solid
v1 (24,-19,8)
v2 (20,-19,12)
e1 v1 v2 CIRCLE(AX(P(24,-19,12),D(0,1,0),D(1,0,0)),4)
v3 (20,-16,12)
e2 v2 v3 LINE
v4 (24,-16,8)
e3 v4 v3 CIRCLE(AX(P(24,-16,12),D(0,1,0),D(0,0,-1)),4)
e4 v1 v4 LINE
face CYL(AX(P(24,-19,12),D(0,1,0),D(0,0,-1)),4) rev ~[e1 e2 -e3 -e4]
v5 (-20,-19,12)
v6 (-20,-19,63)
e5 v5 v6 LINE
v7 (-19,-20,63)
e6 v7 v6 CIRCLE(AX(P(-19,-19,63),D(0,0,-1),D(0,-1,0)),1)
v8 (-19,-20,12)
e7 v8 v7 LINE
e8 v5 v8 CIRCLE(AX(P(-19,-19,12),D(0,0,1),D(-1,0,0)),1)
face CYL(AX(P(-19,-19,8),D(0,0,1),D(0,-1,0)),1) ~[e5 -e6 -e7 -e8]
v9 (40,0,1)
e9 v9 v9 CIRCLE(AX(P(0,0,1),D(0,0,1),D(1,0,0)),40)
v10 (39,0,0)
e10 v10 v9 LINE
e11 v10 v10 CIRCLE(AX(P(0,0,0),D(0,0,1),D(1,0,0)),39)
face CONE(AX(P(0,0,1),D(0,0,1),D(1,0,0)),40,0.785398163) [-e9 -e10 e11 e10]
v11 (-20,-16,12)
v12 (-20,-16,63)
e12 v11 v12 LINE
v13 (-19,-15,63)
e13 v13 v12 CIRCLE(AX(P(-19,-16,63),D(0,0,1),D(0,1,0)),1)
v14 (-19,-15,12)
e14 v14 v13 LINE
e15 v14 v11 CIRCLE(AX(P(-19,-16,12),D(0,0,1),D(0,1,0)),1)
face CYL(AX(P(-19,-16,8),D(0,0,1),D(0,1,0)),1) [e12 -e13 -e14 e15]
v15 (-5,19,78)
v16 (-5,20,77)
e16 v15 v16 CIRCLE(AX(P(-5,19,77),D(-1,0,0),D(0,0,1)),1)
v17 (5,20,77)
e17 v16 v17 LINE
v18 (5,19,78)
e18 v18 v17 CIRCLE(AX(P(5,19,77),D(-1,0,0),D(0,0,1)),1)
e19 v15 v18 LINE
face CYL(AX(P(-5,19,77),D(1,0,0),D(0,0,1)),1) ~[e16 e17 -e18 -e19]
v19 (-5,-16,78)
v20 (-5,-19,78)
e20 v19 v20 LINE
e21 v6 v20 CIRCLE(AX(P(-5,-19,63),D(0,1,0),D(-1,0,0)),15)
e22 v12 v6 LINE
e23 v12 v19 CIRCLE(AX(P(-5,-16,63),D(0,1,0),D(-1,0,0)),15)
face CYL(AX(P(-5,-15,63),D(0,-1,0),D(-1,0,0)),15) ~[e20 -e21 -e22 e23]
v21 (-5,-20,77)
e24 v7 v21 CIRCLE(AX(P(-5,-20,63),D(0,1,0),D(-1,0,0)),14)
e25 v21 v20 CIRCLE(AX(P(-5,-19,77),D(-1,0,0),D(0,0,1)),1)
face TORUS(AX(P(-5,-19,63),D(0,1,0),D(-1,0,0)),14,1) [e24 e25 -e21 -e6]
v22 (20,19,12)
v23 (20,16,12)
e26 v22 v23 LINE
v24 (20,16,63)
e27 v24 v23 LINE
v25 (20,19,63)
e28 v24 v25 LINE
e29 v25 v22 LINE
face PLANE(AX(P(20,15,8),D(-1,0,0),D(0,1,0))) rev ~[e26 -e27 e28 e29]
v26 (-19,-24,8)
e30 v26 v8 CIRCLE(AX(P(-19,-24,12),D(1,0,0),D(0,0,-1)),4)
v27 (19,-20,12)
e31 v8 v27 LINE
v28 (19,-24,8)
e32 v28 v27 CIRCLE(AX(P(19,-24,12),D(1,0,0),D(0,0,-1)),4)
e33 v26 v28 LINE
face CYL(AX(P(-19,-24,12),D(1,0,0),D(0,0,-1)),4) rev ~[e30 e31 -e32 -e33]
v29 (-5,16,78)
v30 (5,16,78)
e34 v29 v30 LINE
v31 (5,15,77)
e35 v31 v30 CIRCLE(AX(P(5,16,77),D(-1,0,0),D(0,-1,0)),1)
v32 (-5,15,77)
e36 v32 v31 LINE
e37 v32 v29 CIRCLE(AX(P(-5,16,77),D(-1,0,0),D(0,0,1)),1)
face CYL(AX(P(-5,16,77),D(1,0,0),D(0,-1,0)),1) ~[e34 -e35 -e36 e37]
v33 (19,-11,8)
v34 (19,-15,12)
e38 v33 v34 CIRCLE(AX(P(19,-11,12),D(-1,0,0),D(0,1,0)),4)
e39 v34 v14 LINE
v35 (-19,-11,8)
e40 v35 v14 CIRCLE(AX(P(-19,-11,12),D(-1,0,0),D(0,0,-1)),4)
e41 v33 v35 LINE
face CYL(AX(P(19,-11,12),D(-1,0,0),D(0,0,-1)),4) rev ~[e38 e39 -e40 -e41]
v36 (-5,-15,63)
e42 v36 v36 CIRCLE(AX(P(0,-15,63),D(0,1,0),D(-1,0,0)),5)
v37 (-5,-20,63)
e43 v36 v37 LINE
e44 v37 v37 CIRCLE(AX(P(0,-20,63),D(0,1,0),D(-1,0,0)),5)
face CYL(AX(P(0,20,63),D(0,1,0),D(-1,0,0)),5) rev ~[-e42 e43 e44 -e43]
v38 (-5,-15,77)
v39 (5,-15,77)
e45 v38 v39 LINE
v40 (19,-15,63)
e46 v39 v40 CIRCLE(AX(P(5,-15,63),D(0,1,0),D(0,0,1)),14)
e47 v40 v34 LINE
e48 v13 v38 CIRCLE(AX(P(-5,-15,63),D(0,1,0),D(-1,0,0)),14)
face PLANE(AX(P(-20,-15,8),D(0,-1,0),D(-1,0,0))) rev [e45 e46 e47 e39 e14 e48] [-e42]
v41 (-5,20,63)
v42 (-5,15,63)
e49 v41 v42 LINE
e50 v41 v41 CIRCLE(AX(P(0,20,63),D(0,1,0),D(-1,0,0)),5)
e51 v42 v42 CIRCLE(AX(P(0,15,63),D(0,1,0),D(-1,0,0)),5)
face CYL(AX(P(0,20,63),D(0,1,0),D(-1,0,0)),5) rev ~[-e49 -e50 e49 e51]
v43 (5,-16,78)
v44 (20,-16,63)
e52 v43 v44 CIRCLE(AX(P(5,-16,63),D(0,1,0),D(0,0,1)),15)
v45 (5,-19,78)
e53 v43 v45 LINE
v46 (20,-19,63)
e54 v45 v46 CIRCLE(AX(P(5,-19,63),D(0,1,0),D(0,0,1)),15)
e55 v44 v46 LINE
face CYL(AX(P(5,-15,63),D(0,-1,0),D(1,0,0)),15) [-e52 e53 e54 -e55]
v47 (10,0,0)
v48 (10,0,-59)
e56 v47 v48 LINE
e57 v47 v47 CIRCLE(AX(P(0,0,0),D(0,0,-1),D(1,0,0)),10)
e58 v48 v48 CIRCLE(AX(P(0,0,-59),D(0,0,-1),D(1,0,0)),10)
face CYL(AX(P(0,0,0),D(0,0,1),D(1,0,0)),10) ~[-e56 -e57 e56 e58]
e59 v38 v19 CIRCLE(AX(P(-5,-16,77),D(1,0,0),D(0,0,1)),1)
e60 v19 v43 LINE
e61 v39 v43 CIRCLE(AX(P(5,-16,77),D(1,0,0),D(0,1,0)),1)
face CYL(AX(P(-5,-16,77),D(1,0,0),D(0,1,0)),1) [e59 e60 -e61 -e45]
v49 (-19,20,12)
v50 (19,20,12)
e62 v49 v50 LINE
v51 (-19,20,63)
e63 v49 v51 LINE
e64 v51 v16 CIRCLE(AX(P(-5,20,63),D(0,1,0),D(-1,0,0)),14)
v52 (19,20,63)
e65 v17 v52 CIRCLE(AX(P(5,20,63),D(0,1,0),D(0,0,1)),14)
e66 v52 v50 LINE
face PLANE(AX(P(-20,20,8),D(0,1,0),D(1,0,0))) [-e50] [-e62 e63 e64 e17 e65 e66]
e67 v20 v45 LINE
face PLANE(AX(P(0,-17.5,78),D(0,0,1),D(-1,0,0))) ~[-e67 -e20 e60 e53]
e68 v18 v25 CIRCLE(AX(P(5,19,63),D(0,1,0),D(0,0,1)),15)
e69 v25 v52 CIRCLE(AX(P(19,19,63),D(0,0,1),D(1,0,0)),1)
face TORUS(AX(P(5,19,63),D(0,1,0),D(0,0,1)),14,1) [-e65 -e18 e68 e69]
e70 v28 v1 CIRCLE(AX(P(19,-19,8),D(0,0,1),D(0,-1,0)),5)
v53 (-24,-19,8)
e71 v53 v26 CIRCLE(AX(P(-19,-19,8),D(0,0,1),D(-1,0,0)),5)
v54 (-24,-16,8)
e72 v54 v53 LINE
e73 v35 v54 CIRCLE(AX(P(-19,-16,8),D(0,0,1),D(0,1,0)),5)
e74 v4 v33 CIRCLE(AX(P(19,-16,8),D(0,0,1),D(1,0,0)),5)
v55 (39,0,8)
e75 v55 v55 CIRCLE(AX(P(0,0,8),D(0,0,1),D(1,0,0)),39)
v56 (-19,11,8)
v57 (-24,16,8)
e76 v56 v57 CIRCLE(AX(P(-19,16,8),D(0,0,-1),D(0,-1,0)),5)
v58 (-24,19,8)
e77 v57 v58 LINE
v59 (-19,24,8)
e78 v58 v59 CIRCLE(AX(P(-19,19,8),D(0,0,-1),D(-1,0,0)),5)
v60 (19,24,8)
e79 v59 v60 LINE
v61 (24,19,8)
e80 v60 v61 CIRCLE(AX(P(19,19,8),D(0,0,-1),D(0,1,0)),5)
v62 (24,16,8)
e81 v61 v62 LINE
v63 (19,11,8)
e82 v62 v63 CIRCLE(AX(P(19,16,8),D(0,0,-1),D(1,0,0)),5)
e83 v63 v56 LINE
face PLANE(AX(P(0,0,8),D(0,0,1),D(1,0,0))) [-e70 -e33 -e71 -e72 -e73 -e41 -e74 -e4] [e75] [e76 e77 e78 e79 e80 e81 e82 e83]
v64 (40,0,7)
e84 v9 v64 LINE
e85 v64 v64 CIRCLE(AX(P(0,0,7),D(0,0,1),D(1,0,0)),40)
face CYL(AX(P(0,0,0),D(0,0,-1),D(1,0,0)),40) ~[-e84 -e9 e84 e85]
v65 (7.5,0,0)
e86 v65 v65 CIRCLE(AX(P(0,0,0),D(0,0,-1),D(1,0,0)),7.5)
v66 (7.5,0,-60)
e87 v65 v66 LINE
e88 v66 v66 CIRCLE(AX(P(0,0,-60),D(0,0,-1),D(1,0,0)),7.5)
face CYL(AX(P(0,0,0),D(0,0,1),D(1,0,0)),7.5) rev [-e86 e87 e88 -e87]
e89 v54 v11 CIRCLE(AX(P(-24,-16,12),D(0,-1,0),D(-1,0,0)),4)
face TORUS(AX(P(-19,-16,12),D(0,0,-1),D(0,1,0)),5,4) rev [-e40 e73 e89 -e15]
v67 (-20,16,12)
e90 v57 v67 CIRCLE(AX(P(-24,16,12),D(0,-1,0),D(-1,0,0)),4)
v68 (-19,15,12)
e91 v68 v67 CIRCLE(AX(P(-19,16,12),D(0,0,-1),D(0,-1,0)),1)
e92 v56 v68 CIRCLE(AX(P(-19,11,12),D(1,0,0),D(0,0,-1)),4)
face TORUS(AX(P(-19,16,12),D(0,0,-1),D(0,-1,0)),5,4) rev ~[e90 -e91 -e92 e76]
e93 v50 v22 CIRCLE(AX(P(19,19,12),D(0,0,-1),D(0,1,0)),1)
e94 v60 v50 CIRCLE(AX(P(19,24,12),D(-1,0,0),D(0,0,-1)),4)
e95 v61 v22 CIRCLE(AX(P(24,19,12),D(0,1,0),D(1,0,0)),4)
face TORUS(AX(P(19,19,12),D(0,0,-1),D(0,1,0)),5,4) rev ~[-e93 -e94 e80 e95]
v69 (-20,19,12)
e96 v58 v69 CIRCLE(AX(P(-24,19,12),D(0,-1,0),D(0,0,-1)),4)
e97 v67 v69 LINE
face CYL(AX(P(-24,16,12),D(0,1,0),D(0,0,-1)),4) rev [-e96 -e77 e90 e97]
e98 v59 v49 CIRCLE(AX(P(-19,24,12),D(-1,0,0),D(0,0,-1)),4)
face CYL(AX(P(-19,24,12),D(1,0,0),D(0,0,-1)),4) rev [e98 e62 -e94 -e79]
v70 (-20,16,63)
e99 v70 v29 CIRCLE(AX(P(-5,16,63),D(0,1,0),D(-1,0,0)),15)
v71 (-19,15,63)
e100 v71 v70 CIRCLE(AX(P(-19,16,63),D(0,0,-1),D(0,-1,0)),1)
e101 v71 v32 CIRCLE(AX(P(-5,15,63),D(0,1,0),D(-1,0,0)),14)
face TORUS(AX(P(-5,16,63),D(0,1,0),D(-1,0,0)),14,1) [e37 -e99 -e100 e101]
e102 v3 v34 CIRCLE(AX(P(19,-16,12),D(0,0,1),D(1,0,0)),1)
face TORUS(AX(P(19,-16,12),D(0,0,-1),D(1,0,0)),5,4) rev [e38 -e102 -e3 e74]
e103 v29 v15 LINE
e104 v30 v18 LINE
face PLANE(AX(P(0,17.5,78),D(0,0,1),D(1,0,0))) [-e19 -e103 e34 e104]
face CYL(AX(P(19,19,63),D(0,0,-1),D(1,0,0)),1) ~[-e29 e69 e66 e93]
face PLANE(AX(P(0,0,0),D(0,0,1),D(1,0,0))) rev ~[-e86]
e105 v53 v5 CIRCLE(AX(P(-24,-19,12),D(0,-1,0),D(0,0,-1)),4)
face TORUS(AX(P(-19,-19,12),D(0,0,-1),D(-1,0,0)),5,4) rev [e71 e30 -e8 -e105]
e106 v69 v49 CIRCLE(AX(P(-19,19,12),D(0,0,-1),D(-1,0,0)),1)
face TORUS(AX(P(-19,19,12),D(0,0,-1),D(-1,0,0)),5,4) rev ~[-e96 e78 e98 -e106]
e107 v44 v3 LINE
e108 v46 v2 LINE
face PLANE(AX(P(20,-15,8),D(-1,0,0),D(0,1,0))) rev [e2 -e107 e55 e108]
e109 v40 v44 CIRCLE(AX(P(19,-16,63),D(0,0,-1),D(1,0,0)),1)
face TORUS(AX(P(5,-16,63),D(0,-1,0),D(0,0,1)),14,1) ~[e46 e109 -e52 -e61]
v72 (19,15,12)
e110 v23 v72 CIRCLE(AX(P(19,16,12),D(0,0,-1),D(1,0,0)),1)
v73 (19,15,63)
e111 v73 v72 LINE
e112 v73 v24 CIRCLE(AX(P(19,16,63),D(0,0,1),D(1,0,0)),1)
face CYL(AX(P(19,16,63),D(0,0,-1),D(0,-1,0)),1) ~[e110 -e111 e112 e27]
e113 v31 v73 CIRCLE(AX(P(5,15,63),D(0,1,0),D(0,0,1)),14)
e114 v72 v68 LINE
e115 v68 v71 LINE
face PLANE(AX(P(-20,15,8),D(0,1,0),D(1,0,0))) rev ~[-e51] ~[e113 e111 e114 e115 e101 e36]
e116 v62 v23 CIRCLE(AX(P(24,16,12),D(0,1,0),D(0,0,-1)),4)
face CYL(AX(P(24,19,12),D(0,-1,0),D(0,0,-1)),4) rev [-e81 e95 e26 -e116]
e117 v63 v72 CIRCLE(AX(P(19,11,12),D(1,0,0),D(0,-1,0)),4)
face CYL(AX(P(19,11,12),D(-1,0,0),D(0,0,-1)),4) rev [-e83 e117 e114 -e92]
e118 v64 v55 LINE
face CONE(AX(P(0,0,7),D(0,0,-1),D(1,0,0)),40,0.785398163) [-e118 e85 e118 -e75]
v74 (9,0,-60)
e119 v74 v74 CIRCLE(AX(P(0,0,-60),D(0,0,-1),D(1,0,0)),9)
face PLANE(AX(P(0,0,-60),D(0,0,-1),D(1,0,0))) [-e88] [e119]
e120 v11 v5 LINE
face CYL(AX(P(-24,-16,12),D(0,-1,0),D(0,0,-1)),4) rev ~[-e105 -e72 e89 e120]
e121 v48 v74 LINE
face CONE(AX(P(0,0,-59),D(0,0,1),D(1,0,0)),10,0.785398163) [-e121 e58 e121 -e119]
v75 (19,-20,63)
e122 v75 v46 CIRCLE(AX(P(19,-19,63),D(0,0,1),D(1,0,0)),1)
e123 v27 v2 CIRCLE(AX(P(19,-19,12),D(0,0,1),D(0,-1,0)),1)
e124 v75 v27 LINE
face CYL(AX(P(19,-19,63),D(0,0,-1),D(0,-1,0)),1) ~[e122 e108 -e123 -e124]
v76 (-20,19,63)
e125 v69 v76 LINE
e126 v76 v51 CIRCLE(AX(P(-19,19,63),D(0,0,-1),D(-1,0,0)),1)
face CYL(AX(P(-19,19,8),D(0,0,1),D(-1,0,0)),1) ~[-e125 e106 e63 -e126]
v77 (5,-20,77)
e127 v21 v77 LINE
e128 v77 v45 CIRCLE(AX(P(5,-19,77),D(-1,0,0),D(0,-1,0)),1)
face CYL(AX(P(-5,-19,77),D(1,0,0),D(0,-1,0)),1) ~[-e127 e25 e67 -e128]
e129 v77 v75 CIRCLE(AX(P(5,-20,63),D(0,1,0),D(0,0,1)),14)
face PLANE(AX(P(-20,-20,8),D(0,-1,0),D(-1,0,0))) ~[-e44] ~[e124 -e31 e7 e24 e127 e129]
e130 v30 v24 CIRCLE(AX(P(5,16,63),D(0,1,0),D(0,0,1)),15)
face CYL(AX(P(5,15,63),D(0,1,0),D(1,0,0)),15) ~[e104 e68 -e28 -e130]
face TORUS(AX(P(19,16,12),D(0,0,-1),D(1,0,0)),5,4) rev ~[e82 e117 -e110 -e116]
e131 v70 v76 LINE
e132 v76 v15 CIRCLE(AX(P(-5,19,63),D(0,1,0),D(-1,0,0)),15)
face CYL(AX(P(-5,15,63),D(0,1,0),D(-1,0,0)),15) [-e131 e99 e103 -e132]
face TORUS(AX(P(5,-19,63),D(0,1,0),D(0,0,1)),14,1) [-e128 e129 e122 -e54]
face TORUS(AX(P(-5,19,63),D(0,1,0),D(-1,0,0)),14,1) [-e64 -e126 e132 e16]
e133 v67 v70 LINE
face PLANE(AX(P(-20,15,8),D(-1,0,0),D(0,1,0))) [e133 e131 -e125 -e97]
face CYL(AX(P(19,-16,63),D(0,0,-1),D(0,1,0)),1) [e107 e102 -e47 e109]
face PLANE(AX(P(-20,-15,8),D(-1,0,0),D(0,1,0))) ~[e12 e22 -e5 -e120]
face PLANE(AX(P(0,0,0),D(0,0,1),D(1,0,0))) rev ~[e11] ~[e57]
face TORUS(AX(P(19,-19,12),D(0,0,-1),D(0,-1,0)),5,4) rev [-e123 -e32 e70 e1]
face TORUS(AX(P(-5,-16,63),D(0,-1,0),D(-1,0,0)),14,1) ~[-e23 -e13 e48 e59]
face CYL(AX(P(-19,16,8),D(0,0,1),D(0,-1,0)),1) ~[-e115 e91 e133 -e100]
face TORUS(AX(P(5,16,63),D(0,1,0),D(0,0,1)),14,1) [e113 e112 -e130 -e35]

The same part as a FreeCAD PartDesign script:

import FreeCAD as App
import Part
import Sketcher
Q = App.Units.Quantity


def edges_at(feature, points):
    """Names of the edges that pass closest to the given points."""
    edges = feature.Shape.Edges
    near = lambda p: min(range(len(edges)), key=lambda i: edges[i].distToShape(Part.Vertex(*p))[0])
    return sorted({f"Edge{near(p) + 1}" for p in points})


def add_polygon(sketch, points):
    """Adds a closed chain of lines whose ends are joined by coincident constraints."""
    first, n = sketch.GeometryCount, len(points)
    for a, b in zip(points, points[1:] + points[:1]):
        sketch.addGeometry(Part.LineSegment(App.Vector(*a, 0), App.Vector(*b, 0)), False)
    for i in range(n):
        sketch.addConstraint(Sketcher.Constraint("Coincident", first + i, 2, first + (i + 1) % n, 1))

doc = App.newDocument("Part")
body = doc.addObject("PartDesign::Body", "Body")

# Sketch on XY plane
sketch1 = body.newObject("Sketcher::SketchObject", "Sketch")
sketch1.AttachmentSupport = (doc.getObject("XY_Plane"), [""])
sketch1.MapMode = "FlatFace"
sketch1.addGeometry(Part.Circle(App.Vector(0, 0, 0), App.Vector(0, 0, 1), 40), False)
sketch1.addConstraint(Sketcher.Constraint("Coincident", 0, 3, -1, 1))
sketch1.addConstraint(Sketcher.Constraint("Diameter", 0, Q("80 mm")))
pad1 = body.newObject("PartDesign::Pad", "Pad")
pad1.Profile = sketch1
pad1.Length = 8

# Sketch on XY plane
sketch2 = body.newObject("Sketcher::SketchObject", "Sketch001")
sketch2.AttachmentSupport = (doc.getObject("XY_Plane"), [""])
sketch2.MapMode = "FlatFace"
sketch2.AttachmentOffset = App.Placement(App.Vector(0, 0, 8), App.Rotation())
add_polygon(sketch2, [(-20, 20), (-20, 15), (20, 15), (20, 20)])  # lines 0-3
sketch2.addConstraint(Sketcher.Constraint("Vertical", 0))
sketch2.addConstraint(Sketcher.Constraint("Horizontal", 1))
sketch2.addConstraint(Sketcher.Constraint("Vertical", 2))
sketch2.addConstraint(Sketcher.Constraint("Horizontal", 3))
sketch2.addConstraint(Sketcher.Constraint("DistanceX", 1, 1, 1, 2, Q("40 mm")))
sketch2.addConstraint(Sketcher.Constraint("DistanceY", 0, 2, 0, 1, Q("5 mm")))
sketch2.addConstraint(Sketcher.Constraint("DistanceX", 0, 2, -1, 1, Q("20 mm")))
sketch2.addConstraint(Sketcher.Constraint("DistanceY", -1, 1, 0, 2, Q("15 mm")))
pad2 = body.newObject("PartDesign::Pad", "Pad001")
pad2.Profile = sketch2
pad2.Length = 70
doc.recompute()

fillet = body.newObject("PartDesign::Fillet", "Fillet")
fillet.Base = (pad2, edges_at(pad2, [(-20, 17.5, 78), (20, 17.5, 78)]))
fillet.Radius = 15
doc.recompute()

fillet2 = body.newObject("PartDesign::Fillet", "Fillet001")
fillet2.Base = (fillet, edges_at(fillet, [
    (0, 15, 78),
    (0, 20, 78),
    (-20, 20, 35.5),
    (20, 20, 35.5),
    (-15.607, 20, 73.607),
    (15.607, 20, 73.607),
    (20, 15, 35.5),
    (-20, 15, 35.5),
    (-15.607, 15, 73.607),
    (15.607, 15, 73.607),
]))
fillet2.Radius = 1
doc.recompute()

fillet3 = body.newObject("PartDesign::Fillet", "Fillet002")
fillet3.Base = (fillet2, edges_at(fillet2, [
    (0, 20, 8),
    (20, 17.5, 8),
    (0, 15, 8),
    (-20, 17.5, 8),
    (19.707, 19.707, 8),
    (19.707, 15.293, 8),
    (-19.707, 19.707, 8),
    (-19.707, 15.293, 8),
]))
fillet3.Radius = 4
doc.recompute()

mirrored = body.newObject("PartDesign::Mirrored", "Mirrored")
mirrored.Originals = [pad2]
mirrored.MirrorPlane = (doc.getObject("XZ_Plane"), [""])
body.Tip = mirrored
doc.recompute()

fillet4 = body.newObject("PartDesign::Fillet", "Fillet003")
fillet4.Base = (mirrored, edges_at(mirrored, [(-20, -17.5, 78), (20, -17.5, 78)]))
fillet4.Radius = 15
doc.recompute()

fillet5 = body.newObject("PartDesign::Fillet", "Fillet004")
fillet5.Base = (fillet4, edges_at(fillet4, [
    (0, -15, 78),
    (0, -20, 78),
    (-20, -20, 35.5),
    (20, -20, 35.5),
    (-15.607, -20, 73.607),
    (15.607, -20, 73.607),
    (20, -15, 35.5),
    (-20, -15, 35.5),
    (-15.607, -15, 73.607),
    (15.607, -15, 73.607),
]))
fillet5.Radius = 1
doc.recompute()

fillet6 = body.newObject("PartDesign::Fillet", "Fillet005")
fillet6.Base = (fillet5, edges_at(fillet5, [
    (0, -20, 8),
    (20, -17.5, 8),
    (0, -15, 8),
    (-20, -17.5, 8),
    (19.707, -19.707, 8),
    (19.707, -15.293, 8),
    (-19.707, -19.707, 8),
    (-19.707, -15.293, 8),
]))
fillet6.Radius = 4

# Sketch on XZ plane
sketch3 = body.newObject("Sketcher::SketchObject", "Sketch002")
sketch3.AttachmentSupport = (doc.getObject("XZ_Plane"), [""])
sketch3.MapMode = "FlatFace"
sketch3.AttachmentOffset = App.Placement(App.Vector(0, 0, -20), App.Rotation())
sketch3.addGeometry(Part.Circle(App.Vector(0, 63, 0), App.Vector(0, 0, 1), 5), False)
sketch3.addConstraint(Sketcher.Constraint("PointOnObject", 0, 3, -2))
sketch3.addConstraint(Sketcher.Constraint("Diameter", 0, Q("10 mm")))
sketch3.addConstraint(Sketcher.Constraint("DistanceY", -1, 1, 0, 3, Q("63 mm")))
pocket1 = body.newObject("PartDesign::Pocket", "Pocket")
pocket1.Profile = sketch3
pocket1.Type = "ThroughAll"
pocket1.Reversed = True

# Sketch on XY plane
sketch4 = body.newObject("Sketcher::SketchObject", "Sketch003")
sketch4.AttachmentSupport = (doc.getObject("XY_Plane"), [""])
sketch4.MapMode = "FlatFace"
sketch4.addGeometry(Part.Circle(App.Vector(0, 0, 0), App.Vector(0, 0, 1), 10), False)
sketch4.addGeometry(Part.Circle(App.Vector(0, 0, 0), App.Vector(0, 0, 1), 8), False)
sketch4.addConstraint(Sketcher.Constraint("Coincident", 0, 3, -1, 1))
sketch4.addConstraint(Sketcher.Constraint("Coincident", 1, 3, -1, 1))
sketch4.addConstraint(Sketcher.Constraint("Diameter", 0, Q("20 mm")))
sketch4.addConstraint(Sketcher.Constraint("Diameter", 1, Q("15 mm")))
pad3 = body.newObject("PartDesign::Pad", "Pad002")
pad3.Profile = sketch4
pad3.Length = 60
pad3.Reversed = True
doc.recompute()

chamfer = body.newObject("PartDesign::Chamfer", "Chamfer")
chamfer.Base = (pad3, edges_at(pad3, [(-10, 0, -60)]))
chamfer.Size = 1
doc.recompute()

chamfer2 = body.newObject("PartDesign::Chamfer", "Chamfer001")
chamfer2.Base = (chamfer, edges_at(chamfer, [(-40, 0, 0), (-40, 0, 8)]))
chamfer2.Size = 1

doc.recompute()
